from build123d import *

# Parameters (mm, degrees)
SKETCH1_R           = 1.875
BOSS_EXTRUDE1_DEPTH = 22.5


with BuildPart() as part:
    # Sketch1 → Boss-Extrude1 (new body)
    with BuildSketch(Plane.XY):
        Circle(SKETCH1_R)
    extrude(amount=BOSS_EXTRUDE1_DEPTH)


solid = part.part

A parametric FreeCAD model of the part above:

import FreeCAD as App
import Part
import Sketcher

V = App.Vector

doc = App.newDocument("Part")
body = doc.addObject("PartDesign::Body", "Body")

sketch1 = doc.addObject("Sketcher::SketchObject", "Sketch")
body.addObject(sketch1)
sketch1.AttachmentSupport = (doc.XY_Plane, [""])
sketch1.MapMode = "FlatFace"
sketch1.addGeometry(Part.Circle(V(0, 0, 0), V(0, 0, 1), 1.9), False)
sketch1.addConstraint([
    Sketcher.Constraint("Coincident", 0, 3, -1, 1),
    Sketcher.Constraint("Diameter", 0, 3.75),
])
pad1 = doc.addObject("PartDesign::Pad", "Pad")
body.addObject(pad1)
pad1.Profile = sketch1
pad1.Length = 22.5

doc.recompute()
